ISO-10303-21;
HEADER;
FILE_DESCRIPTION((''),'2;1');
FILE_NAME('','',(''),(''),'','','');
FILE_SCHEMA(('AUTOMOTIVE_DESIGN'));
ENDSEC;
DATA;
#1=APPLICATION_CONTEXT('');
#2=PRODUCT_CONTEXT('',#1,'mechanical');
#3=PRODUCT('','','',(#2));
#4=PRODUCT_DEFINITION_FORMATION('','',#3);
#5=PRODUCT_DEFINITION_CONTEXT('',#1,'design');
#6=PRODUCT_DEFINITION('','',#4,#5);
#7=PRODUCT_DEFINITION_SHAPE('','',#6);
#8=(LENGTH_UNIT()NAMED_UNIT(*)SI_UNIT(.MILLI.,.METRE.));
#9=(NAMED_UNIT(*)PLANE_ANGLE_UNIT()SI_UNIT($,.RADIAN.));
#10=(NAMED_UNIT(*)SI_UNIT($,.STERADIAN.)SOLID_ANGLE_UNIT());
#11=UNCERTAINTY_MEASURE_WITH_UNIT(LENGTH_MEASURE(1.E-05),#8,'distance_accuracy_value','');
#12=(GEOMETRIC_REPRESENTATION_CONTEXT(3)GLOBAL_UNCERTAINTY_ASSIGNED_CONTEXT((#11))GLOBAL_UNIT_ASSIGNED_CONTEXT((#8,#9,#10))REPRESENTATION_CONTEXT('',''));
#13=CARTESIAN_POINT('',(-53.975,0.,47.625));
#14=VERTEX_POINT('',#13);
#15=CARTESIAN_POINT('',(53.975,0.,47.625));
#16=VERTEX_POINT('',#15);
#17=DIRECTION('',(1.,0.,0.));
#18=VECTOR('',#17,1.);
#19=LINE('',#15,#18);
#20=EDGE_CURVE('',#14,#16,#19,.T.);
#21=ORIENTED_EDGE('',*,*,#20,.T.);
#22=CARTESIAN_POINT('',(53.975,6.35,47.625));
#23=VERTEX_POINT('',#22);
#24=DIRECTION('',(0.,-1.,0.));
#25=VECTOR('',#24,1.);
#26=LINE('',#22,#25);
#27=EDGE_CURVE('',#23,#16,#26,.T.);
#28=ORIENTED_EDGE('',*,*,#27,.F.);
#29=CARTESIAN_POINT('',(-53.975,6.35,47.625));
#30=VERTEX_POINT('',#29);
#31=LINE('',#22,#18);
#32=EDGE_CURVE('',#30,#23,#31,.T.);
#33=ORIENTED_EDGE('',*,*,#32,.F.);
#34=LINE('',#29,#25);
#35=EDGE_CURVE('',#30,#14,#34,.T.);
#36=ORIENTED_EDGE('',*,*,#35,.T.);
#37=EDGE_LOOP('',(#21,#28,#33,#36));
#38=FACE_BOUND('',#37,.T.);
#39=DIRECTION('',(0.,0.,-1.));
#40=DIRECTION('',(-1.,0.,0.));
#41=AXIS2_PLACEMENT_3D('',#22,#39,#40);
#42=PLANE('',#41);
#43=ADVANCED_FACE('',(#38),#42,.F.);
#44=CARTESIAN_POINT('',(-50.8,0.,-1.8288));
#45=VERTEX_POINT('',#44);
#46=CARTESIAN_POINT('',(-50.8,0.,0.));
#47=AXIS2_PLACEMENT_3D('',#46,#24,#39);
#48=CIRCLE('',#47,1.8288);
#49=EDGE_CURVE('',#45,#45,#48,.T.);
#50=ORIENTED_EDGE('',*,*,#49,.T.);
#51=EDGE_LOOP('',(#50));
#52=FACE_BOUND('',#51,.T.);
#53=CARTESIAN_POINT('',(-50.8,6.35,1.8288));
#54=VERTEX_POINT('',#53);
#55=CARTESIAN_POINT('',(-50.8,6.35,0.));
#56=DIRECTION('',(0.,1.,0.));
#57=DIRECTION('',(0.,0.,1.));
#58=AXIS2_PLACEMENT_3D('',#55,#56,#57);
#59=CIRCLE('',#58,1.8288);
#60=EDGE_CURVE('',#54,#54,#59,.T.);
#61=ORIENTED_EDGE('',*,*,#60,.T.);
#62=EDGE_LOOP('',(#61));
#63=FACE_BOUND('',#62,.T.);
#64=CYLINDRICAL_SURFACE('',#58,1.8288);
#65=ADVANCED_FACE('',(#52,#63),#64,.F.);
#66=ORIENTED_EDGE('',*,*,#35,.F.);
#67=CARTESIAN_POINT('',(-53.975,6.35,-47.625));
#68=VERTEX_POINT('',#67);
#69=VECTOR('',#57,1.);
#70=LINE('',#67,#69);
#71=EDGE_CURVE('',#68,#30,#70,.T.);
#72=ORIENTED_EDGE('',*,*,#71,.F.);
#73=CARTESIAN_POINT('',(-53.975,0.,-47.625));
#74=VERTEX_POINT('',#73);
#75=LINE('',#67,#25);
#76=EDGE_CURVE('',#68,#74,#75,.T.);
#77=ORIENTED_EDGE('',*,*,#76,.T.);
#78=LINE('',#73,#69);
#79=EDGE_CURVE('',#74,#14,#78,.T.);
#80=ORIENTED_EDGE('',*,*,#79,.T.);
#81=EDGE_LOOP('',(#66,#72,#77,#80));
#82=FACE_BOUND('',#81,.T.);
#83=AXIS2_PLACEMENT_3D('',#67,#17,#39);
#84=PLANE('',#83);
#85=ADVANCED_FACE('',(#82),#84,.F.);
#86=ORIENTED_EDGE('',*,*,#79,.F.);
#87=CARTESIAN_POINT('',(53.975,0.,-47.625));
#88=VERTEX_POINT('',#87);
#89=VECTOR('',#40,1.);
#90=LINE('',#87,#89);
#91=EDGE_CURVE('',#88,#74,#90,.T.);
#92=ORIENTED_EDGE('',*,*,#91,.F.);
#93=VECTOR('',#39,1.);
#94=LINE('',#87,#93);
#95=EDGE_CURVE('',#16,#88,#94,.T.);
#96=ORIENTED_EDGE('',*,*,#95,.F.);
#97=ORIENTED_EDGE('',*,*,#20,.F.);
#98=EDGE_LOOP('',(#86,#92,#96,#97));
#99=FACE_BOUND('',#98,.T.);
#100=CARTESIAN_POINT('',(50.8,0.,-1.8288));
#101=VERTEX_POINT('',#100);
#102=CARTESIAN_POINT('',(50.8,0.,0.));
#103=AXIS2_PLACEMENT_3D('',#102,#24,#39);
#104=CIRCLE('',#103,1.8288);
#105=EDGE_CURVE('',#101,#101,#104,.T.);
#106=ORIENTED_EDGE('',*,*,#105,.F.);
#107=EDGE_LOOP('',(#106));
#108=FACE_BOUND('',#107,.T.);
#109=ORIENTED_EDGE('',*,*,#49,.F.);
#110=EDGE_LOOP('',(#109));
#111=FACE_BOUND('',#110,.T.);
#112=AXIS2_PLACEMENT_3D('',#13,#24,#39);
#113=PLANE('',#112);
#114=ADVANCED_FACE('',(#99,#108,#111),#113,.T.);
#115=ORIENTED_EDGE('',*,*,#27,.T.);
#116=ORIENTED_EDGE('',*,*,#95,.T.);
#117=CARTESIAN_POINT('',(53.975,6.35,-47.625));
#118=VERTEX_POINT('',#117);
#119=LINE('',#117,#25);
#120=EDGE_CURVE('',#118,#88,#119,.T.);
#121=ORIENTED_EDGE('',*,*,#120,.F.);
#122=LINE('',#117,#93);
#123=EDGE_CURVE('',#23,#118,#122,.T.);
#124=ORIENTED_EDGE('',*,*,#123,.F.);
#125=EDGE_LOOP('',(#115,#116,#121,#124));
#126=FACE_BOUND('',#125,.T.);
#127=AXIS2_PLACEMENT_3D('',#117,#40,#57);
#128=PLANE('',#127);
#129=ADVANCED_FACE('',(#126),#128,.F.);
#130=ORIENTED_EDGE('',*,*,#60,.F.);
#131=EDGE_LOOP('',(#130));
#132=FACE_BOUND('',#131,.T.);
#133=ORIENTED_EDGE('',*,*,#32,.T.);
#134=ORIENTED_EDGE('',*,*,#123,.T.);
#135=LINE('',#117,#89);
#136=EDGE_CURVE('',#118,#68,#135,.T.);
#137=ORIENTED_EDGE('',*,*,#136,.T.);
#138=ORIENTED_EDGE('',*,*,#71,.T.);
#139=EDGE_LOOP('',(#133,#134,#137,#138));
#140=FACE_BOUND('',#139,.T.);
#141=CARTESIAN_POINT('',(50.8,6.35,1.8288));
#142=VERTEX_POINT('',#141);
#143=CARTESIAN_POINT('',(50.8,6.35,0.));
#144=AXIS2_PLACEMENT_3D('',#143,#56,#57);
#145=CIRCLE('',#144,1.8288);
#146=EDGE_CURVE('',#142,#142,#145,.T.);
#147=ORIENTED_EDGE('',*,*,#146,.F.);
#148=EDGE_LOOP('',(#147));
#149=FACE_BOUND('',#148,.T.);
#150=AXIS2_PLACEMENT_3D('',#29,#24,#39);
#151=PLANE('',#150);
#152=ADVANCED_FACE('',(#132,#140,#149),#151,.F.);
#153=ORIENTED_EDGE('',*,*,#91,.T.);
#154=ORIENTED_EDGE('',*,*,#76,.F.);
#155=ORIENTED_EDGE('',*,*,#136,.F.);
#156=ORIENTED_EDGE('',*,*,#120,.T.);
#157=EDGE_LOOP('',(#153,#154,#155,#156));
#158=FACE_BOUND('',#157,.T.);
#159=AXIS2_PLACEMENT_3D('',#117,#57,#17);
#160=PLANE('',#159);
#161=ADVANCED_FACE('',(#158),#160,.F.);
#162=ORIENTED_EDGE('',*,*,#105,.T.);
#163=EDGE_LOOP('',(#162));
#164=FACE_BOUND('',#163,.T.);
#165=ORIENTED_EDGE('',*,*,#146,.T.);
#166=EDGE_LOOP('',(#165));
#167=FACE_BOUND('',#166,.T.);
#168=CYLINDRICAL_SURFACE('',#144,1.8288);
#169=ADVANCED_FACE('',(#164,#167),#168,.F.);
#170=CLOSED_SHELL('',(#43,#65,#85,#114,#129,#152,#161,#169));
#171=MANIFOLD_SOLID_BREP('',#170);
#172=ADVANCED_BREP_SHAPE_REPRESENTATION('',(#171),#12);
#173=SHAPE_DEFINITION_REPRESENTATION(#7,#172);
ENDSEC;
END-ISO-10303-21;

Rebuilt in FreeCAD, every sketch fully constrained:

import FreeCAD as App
import Part
import Sketcher
from FreeCAD import Vector
Q = App.Units.Quantity

doc = App.newDocument("Part")
body = doc.addObject("PartDesign::Body", "Body")

sketch1 = body.newObject("Sketcher::SketchObject", "Sketch")
sketch1.AttachmentSupport = (doc.getObject("XZ_Plane"), [""])
sketch1.MapMode = "FlatFace"
sketch1.addGeometry(Part.LineSegment(Vector(-54, -48, 0), Vector(-54, 48, 0)), False)
sketch1.addGeometry(Part.LineSegment(Vector(-54, 48, 0), Vector(54, 48, 0)), False)
sketch1.addGeometry(Part.LineSegment(Vector(54, 48, 0), Vector(54, -48, 0)), False)
sketch1.addGeometry(Part.LineSegment(Vector(54, -48, 0), Vector(-54, -48, 0)), False)
sketch1.addConstraint(Sketcher.Constraint("Coincident", 0, 2, 1, 1))
sketch1.addConstraint(Sketcher.Constraint("Coincident", 1, 2, 2, 1))
sketch1.addConstraint(Sketcher.Constraint("Coincident", 2, 2, 3, 1))
sketch1.addConstraint(Sketcher.Constraint("Coincident", 3, 2, 0, 1))
sketch1.addConstraint(Sketcher.Constraint("Vertical", 0))
sketch1.addConstraint(Sketcher.Constraint("Horizontal", 1))
sketch1.addConstraint(Sketcher.Constraint("Vertical", 2))
sketch1.addConstraint(Sketcher.Constraint("Horizontal", 3))
sketch1.addConstraint(Sketcher.Constraint("Symmetric", 0, 2, 2, 2, -1, 1))
sketch1.addConstraint(Sketcher.Constraint("DistanceX", 1, 1, 1, 2, Q("4.25 in")))
sketch1.addConstraint(Sketcher.Constraint("DistanceY", 0, 1, 0, 2, Q("3.75 in")))
pad1 = body.newObject("PartDesign::Pad", "Pad")
pad1.Profile = sketch1
pad1.Length = Q("0.25 in")
pad1.Reversed = True

sketch2 = body.newObject("Sketcher::SketchObject", "Sketch001")
sketch2.AttachmentSupport = (doc.getObject("XZ_Plane"), [""])
sketch2.MapMode = "FlatFace"
sketch2.AttachmentOffset = App.Placement(Vector(0, 0, -0.25 * 25.4), App.Rotation())
sketch2.addGeometry(Part.Circle(Vector(-50.8, 0, 0), Vector(0, 0, 1), 1.8), False)
sketch2.addGeometry(Part.Circle(Vector(50.8, 0, 0), Vector(0, 0, 1), 1.8), False)
sketch2.addConstraint(Sketcher.Constraint("Equal", 0, 1))
sketch2.addConstraint(Sketcher.Constraint("Symmetric", 0, 3, 1, 3, -1, 1))
sketch2.addConstraint(Sketcher.Constraint("PointOnObject", 0, 3, -1))
sketch2.addConstraint(Sketcher.Constraint("Diameter", 0, Q("0.144 in")))
sketch2.addConstraint(Sketcher.Constraint("DistanceX", 0, 3, -1, 1, Q("2 in")))
doc.recompute()
hole = body.newObject("PartDesign::Hole", "Hole")
hole.Profile = sketch2
hole.ThreadType = "None"
hole.Diameter = Q("0.144 in")
hole.DepthType = "Dimension"
hole.Depth = Q("1 in")
hole.DrillPoint = "Angled"
hole.DrillPointAngle = 118
hole.Reversed = True

doc.recompute()
